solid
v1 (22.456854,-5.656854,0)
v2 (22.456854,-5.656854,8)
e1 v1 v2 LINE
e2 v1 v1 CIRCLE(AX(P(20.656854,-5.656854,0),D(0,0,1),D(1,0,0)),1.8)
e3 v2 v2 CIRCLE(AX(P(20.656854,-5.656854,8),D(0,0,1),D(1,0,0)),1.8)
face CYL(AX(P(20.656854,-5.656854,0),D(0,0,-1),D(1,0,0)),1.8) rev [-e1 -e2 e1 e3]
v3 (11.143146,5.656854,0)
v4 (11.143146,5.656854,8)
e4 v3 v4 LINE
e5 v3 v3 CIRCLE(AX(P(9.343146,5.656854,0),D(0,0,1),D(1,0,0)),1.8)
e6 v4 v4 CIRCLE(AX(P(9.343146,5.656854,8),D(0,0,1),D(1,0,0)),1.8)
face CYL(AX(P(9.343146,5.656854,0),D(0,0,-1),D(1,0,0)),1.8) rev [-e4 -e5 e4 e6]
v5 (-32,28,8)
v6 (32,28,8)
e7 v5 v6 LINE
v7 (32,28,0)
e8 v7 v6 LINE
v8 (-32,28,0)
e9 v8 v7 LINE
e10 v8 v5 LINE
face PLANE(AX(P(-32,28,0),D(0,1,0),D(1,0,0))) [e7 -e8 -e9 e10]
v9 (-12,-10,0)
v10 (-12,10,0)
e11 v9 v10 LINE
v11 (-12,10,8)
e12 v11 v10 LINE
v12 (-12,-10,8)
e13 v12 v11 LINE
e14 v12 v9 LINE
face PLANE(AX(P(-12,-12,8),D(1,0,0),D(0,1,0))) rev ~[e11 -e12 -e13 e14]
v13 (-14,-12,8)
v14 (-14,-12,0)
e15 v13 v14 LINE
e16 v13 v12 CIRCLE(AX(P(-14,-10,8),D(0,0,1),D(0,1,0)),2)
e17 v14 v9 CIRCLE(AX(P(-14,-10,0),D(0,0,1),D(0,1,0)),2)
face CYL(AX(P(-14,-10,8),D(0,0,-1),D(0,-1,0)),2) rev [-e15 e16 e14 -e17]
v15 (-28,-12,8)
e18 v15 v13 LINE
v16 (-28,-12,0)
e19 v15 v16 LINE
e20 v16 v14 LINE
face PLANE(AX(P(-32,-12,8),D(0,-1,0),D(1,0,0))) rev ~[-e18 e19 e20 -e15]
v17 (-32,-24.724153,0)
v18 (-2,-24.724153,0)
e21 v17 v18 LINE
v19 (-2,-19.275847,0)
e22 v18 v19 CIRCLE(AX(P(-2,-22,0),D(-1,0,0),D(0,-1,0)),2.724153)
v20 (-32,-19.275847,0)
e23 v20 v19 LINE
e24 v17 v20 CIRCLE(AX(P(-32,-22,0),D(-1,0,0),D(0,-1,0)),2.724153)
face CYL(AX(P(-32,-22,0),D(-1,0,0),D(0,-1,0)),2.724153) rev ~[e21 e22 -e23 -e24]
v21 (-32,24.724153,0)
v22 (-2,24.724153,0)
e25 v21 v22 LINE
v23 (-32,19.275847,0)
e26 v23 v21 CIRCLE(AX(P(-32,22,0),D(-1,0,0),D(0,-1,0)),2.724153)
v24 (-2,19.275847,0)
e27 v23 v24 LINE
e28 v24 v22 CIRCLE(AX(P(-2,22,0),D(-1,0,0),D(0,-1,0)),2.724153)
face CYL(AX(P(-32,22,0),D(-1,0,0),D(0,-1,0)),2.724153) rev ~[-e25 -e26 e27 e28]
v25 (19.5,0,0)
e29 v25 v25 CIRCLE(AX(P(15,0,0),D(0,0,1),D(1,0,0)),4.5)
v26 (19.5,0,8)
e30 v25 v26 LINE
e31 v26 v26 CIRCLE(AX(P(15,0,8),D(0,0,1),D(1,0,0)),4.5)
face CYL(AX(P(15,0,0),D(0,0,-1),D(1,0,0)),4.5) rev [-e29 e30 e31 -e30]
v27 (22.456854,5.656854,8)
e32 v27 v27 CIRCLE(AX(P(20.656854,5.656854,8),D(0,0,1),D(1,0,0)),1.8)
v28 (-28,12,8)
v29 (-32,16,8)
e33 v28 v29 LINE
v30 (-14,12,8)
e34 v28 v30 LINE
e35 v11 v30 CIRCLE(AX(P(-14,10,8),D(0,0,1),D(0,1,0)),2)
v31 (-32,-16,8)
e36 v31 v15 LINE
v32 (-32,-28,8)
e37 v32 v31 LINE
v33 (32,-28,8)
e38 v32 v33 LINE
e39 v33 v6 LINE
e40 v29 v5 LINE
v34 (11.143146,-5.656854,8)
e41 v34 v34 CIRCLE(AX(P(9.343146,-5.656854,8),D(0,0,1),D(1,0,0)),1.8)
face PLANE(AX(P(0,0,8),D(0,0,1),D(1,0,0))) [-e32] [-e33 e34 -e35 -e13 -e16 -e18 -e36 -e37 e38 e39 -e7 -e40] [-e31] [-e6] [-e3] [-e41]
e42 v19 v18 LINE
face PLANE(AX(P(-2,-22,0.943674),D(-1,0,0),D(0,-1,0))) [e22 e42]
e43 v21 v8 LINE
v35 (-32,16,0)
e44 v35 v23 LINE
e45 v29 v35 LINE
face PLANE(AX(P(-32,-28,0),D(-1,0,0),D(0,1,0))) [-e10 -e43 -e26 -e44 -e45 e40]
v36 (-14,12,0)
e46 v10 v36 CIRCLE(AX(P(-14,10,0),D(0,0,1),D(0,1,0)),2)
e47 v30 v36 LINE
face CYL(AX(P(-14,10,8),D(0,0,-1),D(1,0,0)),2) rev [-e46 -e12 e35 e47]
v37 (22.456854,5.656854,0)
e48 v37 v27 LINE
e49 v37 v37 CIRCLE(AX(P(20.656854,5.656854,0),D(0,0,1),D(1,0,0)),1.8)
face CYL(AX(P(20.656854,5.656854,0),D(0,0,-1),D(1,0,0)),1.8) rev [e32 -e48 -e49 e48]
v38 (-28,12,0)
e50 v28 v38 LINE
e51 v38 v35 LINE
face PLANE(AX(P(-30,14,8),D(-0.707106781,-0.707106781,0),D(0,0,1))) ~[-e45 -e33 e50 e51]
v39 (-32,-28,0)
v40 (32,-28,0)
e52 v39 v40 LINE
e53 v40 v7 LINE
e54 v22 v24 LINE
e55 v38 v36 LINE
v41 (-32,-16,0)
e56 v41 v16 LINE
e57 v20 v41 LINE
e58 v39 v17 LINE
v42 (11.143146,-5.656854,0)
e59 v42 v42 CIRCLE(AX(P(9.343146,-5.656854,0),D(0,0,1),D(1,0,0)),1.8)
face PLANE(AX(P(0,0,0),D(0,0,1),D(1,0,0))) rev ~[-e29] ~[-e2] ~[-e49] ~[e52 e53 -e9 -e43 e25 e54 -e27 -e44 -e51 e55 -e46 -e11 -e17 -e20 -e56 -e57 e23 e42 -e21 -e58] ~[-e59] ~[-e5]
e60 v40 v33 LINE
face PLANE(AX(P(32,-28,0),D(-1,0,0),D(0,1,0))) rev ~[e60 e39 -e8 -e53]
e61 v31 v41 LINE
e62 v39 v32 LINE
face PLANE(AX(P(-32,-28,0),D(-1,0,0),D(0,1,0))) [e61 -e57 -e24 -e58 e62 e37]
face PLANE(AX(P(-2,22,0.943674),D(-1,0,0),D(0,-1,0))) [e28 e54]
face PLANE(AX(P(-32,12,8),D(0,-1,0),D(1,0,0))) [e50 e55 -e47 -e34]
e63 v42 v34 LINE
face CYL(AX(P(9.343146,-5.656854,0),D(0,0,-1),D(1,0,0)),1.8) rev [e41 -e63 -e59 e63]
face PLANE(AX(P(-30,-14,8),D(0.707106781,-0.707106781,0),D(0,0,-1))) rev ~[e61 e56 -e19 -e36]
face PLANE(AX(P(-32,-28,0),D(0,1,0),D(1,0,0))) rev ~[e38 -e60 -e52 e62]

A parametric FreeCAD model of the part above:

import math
import FreeCAD as App
import Part
import Sketcher

V = App.Vector


def edges_at(feature, points):
    """Names of the edges that pass closest to the given points."""
    edges = feature.Shape.Edges
    near = lambda p: min(range(len(edges)), key=lambda i: edges[i].distToShape(Part.Vertex(*p))[0])
    return sorted({f"Edge{near(p) + 1}" for p in points})

doc = App.newDocument("Part")
body = doc.addObject("PartDesign::Body", "Body")

# Sketch on XY plane
sketch1 = body.newObject("Sketcher::SketchObject", "Sketch")
sketch1.AttachmentSupport = (doc.getObject("XY_Plane"), [""])
sketch1.MapMode = "FlatFace"
sketch1.addGeometry([
    Part.LineSegment(V(-32, 28, 0), V(-32, -28, 0)),  # 0
    Part.LineSegment(V(-32, -28, 0), V(32, -28, 0)),  # 1
    Part.LineSegment(V(32, -28, 0), V(32, 28, 0)),  # 2
    Part.LineSegment(V(32, 28, 0), V(-32, 28, 0)),  # 3
    Part.Circle(V(9.3, -5.7, 0), V(0, 0, 1), 1.8),  # 4
    Part.Circle(V(20.7, -5.7, 0), V(0, 0, 1), 1.8),  # 5
    Part.Circle(V(9.3, 5.7, 0), V(0, 0, 1), 1.8),  # 6
    Part.Circle(V(15, 0, 0), V(0, 0, 1), 4.5),  # 7
    Part.Circle(V(20.7, 5.7, 0), V(0, 0, 1), 1.8),  # 8
], False)
sketch1.addConstraint([
    Sketcher.Constraint("Coincident", 0, 2, 1, 1),
    Sketcher.Constraint("Coincident", 1, 2, 2, 1),
    Sketcher.Constraint("Coincident", 2, 2, 3, 1),
    Sketcher.Constraint("Coincident", 3, 2, 0, 1),
    Sketcher.Constraint("Vertical", 0),
    Sketcher.Constraint("Horizontal", 1),
    Sketcher.Constraint("Vertical", 2),
    Sketcher.Constraint("Horizontal", 3),
    Sketcher.Constraint("Equal", 4, 5),
    Sketcher.Constraint("Equal", 5, 6),
    Sketcher.Constraint("Equal", 6, 8),
    Sketcher.Constraint("Symmetric", 0, 2, 2, 2, -1, 1),
    Sketcher.Constraint("Symmetric", 4, 3, 6, 3, -1),
    Sketcher.Constraint("Symmetric", 5, 3, 8, 3, -1),
    Sketcher.Constraint("PointOnObject", 7, 3, -1),
    Sketcher.Constraint("Horizontal", 4, 3, 5, 3),
    Sketcher.Constraint("Diameter", 7, 9.0),
    Sketcher.Constraint("Diameter", 4, 3.6),
    Sketcher.Constraint("DistanceX", 1, 1, 1, 2, 64.0),
    Sketcher.Constraint("DistanceY", 0, 2, 0, 1, 56.0),
    Sketcher.Constraint("DistanceX", -1, 1, 7, 3, 15.0),
    Sketcher.Constraint("DistanceX", 4, 3, 5, 3, 11.313708),
    Sketcher.Constraint("DistanceY", 4, 3, 6, 3, 11.313709),
    Sketcher.Constraint("DistanceX", -1, 1, 4, 3, 9.343146),
])
pad1 = body.newObject("PartDesign::Pad", "Pad")
pad1.Profile = sketch1
pad1.Length = 8

# Sketch on YZ plane
sketch2 = body.newObject("Sketcher::SketchObject", "Sketch001")
sketch2.AttachmentSupport = (doc.getObject("YZ_Plane"), [""])
sketch2.MapMode = "FlatFace"
sketch2.AttachmentOffset = App.Placement(V(0, 0, -32), App.Rotation())
sketch2.addGeometry([
    Part.LineSegment(V(24.7, 0, 0), V(19.3, 0, 0)),
    Part.ArcOfCircle(Part.Circle(V(22, 0, 0), V(0, 0, 1), 2.7), math.radians(0), math.radians(180)),
    Part.ArcOfCircle(Part.Circle(V(-22, 0, 0), V(0, 0, 1), 2.7), math.radians(0), math.radians(180)),
    Part.LineSegment(V(-19.3, 0, 0), V(-24.7, 0, 0)),
], False)
sketch2.addConstraint([
    Sketcher.Constraint("Coincident", 0, 1, 1, 1),
    Sketcher.Constraint("Coincident", 1, 2, 0, 2),
    Sketcher.Constraint("Coincident", 2, 1, 3, 1),
    Sketcher.Constraint("Coincident", 3, 2, 2, 2),
    Sketcher.Constraint("Horizontal", 0),
    Sketcher.Constraint("Horizontal", 3),
    Sketcher.Constraint("Equal", 1, 2),
    Sketcher.Constraint("Symmetric", 1, 3, 2, 3, -1, 1),
    Sketcher.Constraint("PointOnObject", 1, 3, -1),
    Sketcher.Constraint("PointOnObject", 0, 1, -1),
    Sketcher.Constraint("PointOnObject", 2, 1, -1),
    Sketcher.Constraint("DistanceX", -1, 1, 1, 3, 22.0),
    Sketcher.Constraint("Radius", 1, 2.724153),
])
pocket1 = body.newObject("PartDesign::Pocket", "Pocket")
pocket1.Profile = sketch2
pocket1.Length = 30
pocket1.Reversed = True

# Sketch on XY plane
sketch3 = body.newObject("Sketcher::SketchObject", "Sketch002")
sketch3.AttachmentSupport = (doc.getObject("XY_Plane"), [""])
sketch3.MapMode = "FlatFace"
sketch3.AttachmentOffset = App.Placement(V(0, 0, 8), App.Rotation())
sketch3.addGeometry([
    Part.LineSegment(V(-32, 12, 0), V(-32, -12, 0)),
    Part.LineSegment(V(-32, -12, 0), V(-12, -12, 0)),
    Part.LineSegment(V(-12, -12, 0), V(-12, 12, 0)),
    Part.LineSegment(V(-12, 12, 0), V(-32, 12, 0)),
], False)
sketch3.addConstraint([
    Sketcher.Constraint("Coincident", 0, 2, 1, 1),
    Sketcher.Constraint("Coincident", 1, 2, 2, 1),
    Sketcher.Constraint("Coincident", 2, 2, 3, 1),
    Sketcher.Constraint("Coincident", 3, 2, 0, 1),
    Sketcher.Constraint("Vertical", 0),
    Sketcher.Constraint("Horizontal", 1),
    Sketcher.Constraint("Vertical", 2),
    Sketcher.Constraint("Horizontal", 3),
    Sketcher.Constraint("DistanceX", 1, 1, 1, 2, 20.0),
    Sketcher.Constraint("DistanceY", 0, 2, 0, 1, 24.0),
    Sketcher.Constraint("DistanceX", 0, 2, -1, 1, 32.0),
    Sketcher.Constraint("DistanceY", 0, 2, -1, 1, 12.0),
])
pocket2 = body.newObject("PartDesign::Pocket", "Pocket001")
pocket2.Profile = sketch3
pocket2.Length = 25
doc.recompute()

chamfer = body.newObject("PartDesign::Chamfer", "Chamfer")
chamfer.Base = (pocket2, edges_at(pocket2, [(-32, 12, 4), (-32, -12, 4)]))
chamfer.Size = 4
doc.recompute()

fillet = body.newObject("PartDesign::Fillet", "Fillet")
fillet.Base = (chamfer, edges_at(chamfer, [(-12, 12, 4), (-12, -12, 4)]))
fillet.Radius = 2

doc.recompute()
